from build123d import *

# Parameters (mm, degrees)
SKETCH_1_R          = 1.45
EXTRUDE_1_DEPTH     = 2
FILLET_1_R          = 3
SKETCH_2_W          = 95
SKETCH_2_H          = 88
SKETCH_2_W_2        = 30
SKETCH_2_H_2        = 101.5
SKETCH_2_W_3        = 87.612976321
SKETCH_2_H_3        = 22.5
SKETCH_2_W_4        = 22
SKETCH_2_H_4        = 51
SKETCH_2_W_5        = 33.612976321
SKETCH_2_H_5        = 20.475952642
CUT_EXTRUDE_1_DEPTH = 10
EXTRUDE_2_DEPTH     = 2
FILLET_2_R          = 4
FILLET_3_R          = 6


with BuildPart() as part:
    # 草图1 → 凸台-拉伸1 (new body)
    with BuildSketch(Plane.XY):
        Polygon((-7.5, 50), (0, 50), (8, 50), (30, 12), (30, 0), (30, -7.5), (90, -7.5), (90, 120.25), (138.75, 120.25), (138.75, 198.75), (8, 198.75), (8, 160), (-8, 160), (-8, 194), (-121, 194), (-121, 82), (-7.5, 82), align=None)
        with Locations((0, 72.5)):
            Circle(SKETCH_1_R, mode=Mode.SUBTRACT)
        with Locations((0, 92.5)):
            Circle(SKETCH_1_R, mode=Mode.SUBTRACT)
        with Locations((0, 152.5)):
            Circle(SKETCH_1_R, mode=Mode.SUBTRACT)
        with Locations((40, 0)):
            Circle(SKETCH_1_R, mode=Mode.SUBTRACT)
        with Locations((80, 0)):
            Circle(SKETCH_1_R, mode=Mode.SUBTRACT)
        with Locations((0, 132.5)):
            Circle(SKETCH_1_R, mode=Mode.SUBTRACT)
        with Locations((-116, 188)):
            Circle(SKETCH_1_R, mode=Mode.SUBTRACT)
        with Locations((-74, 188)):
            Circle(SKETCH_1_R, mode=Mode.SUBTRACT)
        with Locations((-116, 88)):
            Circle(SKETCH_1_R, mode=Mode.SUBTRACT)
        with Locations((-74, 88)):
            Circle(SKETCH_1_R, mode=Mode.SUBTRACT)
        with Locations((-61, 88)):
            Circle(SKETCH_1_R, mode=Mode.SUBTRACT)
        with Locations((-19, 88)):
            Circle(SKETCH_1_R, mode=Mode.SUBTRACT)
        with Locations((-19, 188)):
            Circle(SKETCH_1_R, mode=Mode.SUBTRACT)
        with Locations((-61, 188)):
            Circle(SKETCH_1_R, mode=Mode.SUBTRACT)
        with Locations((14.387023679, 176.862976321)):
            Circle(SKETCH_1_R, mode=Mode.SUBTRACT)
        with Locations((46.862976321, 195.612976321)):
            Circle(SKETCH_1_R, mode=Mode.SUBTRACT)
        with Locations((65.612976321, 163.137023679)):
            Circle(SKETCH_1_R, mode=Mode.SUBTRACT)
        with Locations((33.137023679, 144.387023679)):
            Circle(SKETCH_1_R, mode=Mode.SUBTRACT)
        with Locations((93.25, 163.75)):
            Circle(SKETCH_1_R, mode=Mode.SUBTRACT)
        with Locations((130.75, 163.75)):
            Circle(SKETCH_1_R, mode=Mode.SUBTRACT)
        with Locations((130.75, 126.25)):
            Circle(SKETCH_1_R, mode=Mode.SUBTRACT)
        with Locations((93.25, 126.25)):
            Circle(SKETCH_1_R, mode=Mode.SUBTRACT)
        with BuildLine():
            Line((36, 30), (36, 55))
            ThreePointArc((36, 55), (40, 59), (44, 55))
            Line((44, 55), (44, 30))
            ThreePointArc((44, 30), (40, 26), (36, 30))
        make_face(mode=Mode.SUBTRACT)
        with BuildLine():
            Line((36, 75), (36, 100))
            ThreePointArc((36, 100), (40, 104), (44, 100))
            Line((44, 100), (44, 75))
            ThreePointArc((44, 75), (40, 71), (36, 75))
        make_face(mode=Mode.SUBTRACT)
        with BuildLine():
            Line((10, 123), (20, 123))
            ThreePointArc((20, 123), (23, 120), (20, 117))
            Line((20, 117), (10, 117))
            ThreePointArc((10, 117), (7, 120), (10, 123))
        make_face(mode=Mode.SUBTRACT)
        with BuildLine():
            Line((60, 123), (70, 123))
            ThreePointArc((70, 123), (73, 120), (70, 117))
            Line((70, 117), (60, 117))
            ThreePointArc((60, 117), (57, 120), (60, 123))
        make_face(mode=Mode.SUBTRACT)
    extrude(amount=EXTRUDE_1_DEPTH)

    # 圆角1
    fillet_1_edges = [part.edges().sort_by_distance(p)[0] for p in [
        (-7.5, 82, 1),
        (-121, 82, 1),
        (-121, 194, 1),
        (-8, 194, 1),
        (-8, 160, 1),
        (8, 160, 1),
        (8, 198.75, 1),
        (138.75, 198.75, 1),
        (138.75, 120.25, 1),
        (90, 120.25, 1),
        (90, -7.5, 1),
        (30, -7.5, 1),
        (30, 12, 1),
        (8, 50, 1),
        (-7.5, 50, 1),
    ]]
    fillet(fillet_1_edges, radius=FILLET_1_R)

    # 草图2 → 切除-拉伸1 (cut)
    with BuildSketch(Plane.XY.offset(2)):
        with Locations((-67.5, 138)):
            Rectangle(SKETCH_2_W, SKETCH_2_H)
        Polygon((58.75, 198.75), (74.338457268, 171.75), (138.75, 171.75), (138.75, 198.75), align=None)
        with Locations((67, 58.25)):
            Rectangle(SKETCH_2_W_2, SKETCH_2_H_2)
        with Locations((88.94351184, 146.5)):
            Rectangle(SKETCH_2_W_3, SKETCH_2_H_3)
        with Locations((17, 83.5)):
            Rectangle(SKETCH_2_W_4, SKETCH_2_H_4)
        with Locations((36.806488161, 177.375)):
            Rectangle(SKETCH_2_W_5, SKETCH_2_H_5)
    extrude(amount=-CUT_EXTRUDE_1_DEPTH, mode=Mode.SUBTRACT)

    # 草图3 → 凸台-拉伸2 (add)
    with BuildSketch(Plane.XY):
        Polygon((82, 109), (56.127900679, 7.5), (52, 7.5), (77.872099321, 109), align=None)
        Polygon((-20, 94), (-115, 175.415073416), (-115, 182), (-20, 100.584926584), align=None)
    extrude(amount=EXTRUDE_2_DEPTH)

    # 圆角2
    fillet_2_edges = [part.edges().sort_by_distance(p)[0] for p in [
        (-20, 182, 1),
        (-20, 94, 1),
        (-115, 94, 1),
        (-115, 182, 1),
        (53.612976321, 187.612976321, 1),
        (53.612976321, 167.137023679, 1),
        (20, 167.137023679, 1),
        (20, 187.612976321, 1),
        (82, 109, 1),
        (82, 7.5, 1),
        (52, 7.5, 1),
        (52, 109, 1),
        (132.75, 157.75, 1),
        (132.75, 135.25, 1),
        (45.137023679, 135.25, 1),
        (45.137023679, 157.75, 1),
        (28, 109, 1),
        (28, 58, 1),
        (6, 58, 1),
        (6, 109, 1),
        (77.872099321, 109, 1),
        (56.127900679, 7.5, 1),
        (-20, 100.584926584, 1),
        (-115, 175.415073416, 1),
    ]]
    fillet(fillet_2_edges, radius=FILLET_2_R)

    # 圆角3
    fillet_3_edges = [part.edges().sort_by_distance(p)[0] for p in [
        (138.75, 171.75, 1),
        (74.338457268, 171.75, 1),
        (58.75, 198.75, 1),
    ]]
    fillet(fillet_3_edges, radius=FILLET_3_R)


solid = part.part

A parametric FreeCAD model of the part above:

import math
import FreeCAD as App
import Part
import Sketcher
from FreeCAD import Vector
Q = App.Units.Quantity


def edges_at(feature, points):
    """Names of the edges that pass closest to the given points."""
    edges = feature.Shape.Edges
    near = lambda p: min(range(len(edges)), key=lambda i: edges[i].distToShape(Part.Vertex(*p))[0])
    return sorted({f"Edge{near(p) + 1}" for p in points})


def add_polygon(sketch, points):
    """Adds a closed chain of lines whose ends are joined by coincident constraints."""
    first, n = sketch.GeometryCount, len(points)
    for a, b in zip(points, points[1:] + points[:1]):
        sketch.addGeometry(Part.LineSegment(App.Vector(*a, 0), App.Vector(*b, 0)), False)
    for i in range(n):
        sketch.addConstraint(Sketcher.Constraint("Coincident", first + i, 2, first + (i + 1) % n, 1))

doc = App.newDocument("Part")
body = doc.addObject("PartDesign::Body", "Body")

# Sketch on XY plane
sketch1 = doc.addObject("Sketcher::SketchObject", "Sketch")
body.addObject(sketch1)
sketch1.AttachmentSupport = (doc.XY_Plane, [""])
sketch1.MapMode = "FlatFace"
add_polygon(sketch1, [(-7.5, 50), (8, 50), (30, 12), (30, -7.5), (90, -7.5), (90, 120.25), (138.75, 120.25), (138.75, 198.75), (8, 198.75), (8, 160), (-8, 160), (-8, 194), (-121, 194), (-121, 82), (-7.5, 82)])  # lines 0-14
sketch1.addGeometry(Part.Circle(Vector(-116, 88, 0), Vector(0, 0, 1), 1.45), False)  # 15
sketch1.addGeometry(Part.Circle(Vector(-74, 88, 0), Vector(0, 0, 1), 1.45), False)  # 16
sketch1.addGeometry(Part.Circle(Vector(-61, 88, 0), Vector(0, 0, 1), 1.45), False)  # 17
sketch1.addGeometry(Part.Circle(Vector(0, 72.5, 0), Vector(0, 0, 1), 1.45), False)  # 18
sketch1.addGeometry(Part.Circle(Vector(-19, 88, 0), Vector(0, 0, 1), 1.45), False)  # 19
sketch1.addGeometry(Part.Circle(Vector(0, 92.5, 0), Vector(0, 0, 1), 1.45), False)  # 20
sketch1.addGeometry(Part.Circle(Vector(40, 0, 0), Vector(0, 0, 1), 1.45), False)  # 21
sketch1.addGeometry(Part.ArcOfCircle(Part.Circle(Vector(40, 30, 0), Vector(0, 0, 1), 4), math.radians(180), math.radians(360)), False)  # 22
sketch1.addGeometry(Part.LineSegment(Vector(36, 30, 0), Vector(36, 55, 0)), False)  # 23
sketch1.addGeometry(Part.ArcOfCircle(Part.Circle(Vector(40, 55, 0), Vector(0, 0, 1), 4), math.radians(0), math.radians(180)), False)  # 24
sketch1.addGeometry(Part.LineSegment(Vector(44, 55, 0), Vector(44, 30, 0)), False)  # 25
sketch1.addGeometry(Part.Circle(Vector(80, 0, 0), Vector(0, 0, 1), 1.45), False)  # 26
sketch1.addGeometry(Part.ArcOfCircle(Part.Circle(Vector(40, 75, 0), Vector(0, 0, 1), 4), math.radians(180), math.radians(360)), False)  # 27
sketch1.addGeometry(Part.LineSegment(Vector(36, 75, 0), Vector(36, 100, 0)), False)  # 28
sketch1.addGeometry(Part.ArcOfCircle(Part.Circle(Vector(40, 100, 0), Vector(0, 0, 1), 4), math.radians(0), math.radians(180)), False)  # 29
sketch1.addGeometry(Part.LineSegment(Vector(44, 100, 0), Vector(44, 75, 0)), False)  # 30
sketch1.addGeometry(Part.Circle(Vector(0, 132.5, 0), Vector(0, 0, 1), 1.45), False)  # 31
sketch1.addGeometry(Part.Circle(Vector(-116, 188, 0), Vector(0, 0, 1), 1.45), False)  # 32
sketch1.addGeometry(Part.Circle(Vector(-74, 188, 0), Vector(0, 0, 1), 1.45), False)  # 33
sketch1.addGeometry(Part.Circle(Vector(-61, 188, 0), Vector(0, 0, 1), 1.45), False)  # 34
sketch1.addGeometry(Part.Circle(Vector(0, 152.5, 0), Vector(0, 0, 1), 1.45), False)  # 35
sketch1.addGeometry(Part.Circle(Vector(-19, 188, 0), Vector(0, 0, 1), 1.45), False)  # 36
sketch1.addGeometry(Part.ArcOfCircle(Part.Circle(Vector(10, 120, 0), Vector(0, 0, 1), 3), math.radians(90), math.radians(270)), False)  # 37
sketch1.addGeometry(Part.LineSegment(Vector(10, 123, 0), Vector(20, 123, 0)), False)  # 38
sketch1.addGeometry(Part.ArcOfCircle(Part.Circle(Vector(20, 120, 0), Vector(0, 0, 1), 3), math.radians(-90), math.radians(90)), False)  # 39
sketch1.addGeometry(Part.LineSegment(Vector(20, 117, 0), Vector(10, 117, 0)), False)  # 40
sketch1.addGeometry(Part.ArcOfCircle(Part.Circle(Vector(60, 120, 0), Vector(0, 0, 1), 3), math.radians(90), math.radians(270)), False)  # 41
sketch1.addGeometry(Part.LineSegment(Vector(60, 123, 0), Vector(70, 123, 0)), False)  # 42
sketch1.addGeometry(Part.ArcOfCircle(Part.Circle(Vector(70, 120, 0), Vector(0, 0, 1), 3), math.radians(-90), math.radians(90)), False)  # 43
sketch1.addGeometry(Part.LineSegment(Vector(70, 117, 0), Vector(60, 117, 0)), False)  # 44
sketch1.addGeometry(Part.Circle(Vector(33.137024, 144.387024, 0), Vector(0, 0, 1), 1.45), False)  # 45
sketch1.addGeometry(Part.Circle(Vector(93.25, 126.25, 0), Vector(0, 0, 1), 1.45), False)  # 46
sketch1.addGeometry(Part.Circle(Vector(130.75, 126.25, 0), Vector(0, 0, 1), 1.45), False)  # 47
sketch1.addGeometry(Part.Circle(Vector(65.612976, 163.137024, 0), Vector(0, 0, 1), 1.45), False)  # 48
sketch1.addGeometry(Part.Circle(Vector(14.387024, 176.862976, 0), Vector(0, 0, 1), 1.45), False)  # 49
sketch1.addGeometry(Part.Circle(Vector(46.862976, 195.612976, 0), Vector(0, 0, 1), 1.45), False)  # 50
sketch1.addGeometry(Part.Circle(Vector(93.25, 163.75, 0), Vector(0, 0, 1), 1.45), False)  # 51
sketch1.addGeometry(Part.Circle(Vector(130.75, 163.75, 0), Vector(0, 0, 1), 1.45), False)  # 52
sketch1.addConstraint([
    Sketcher.Constraint("Tangent", 22, 1, 23, 1),
    Sketcher.Constraint("Tangent", 23, 2, 24, 2),
    Sketcher.Constraint("Tangent", 24, 1, 25, 1),
    Sketcher.Constraint("Tangent", 25, 2, 22, 2),
    Sketcher.Constraint("Tangent", 27, 1, 28, 1),
    Sketcher.Constraint("Tangent", 28, 2, 29, 2),
    Sketcher.Constraint("Tangent", 29, 1, 30, 1),
    Sketcher.Constraint("Tangent", 30, 2, 27, 2),
    Sketcher.Constraint("Tangent", 37, 1, 38, 1),
    Sketcher.Constraint("Tangent", 38, 2, 39, 2),
    Sketcher.Constraint("Tangent", 39, 1, 40, 1),
    Sketcher.Constraint("Tangent", 40, 2, 37, 2),
    Sketcher.Constraint("Tangent", 41, 1, 42, 1),
    Sketcher.Constraint("Tangent", 42, 2, 43, 2),
    Sketcher.Constraint("Tangent", 43, 1, 44, 1),
    Sketcher.Constraint("Tangent", 44, 2, 41, 2),
    Sketcher.Constraint("Horizontal", 0),
    Sketcher.Constraint("Vertical", 2),
    Sketcher.Constraint("Horizontal", 3),
    Sketcher.Constraint("Vertical", 4),
    Sketcher.Constraint("Horizontal", 5),
    Sketcher.Constraint("Vertical", 6),
    Sketcher.Constraint("Horizontal", 7),
    Sketcher.Constraint("Vertical", 8),
    Sketcher.Constraint("Horizontal", 9),
    Sketcher.Constraint("Vertical", 10),
    Sketcher.Constraint("Horizontal", 11),
    Sketcher.Constraint("Vertical", 12),
    Sketcher.Constraint("Horizontal", 13),
    Sketcher.Constraint("Vertical", 14),
    Sketcher.Constraint("Vertical", 23),
    Sketcher.Constraint("Vertical", 25),
    Sketcher.Constraint("Vertical", 28),
    Sketcher.Constraint("Vertical", 30),
    Sketcher.Constraint("Horizontal", 38),
    Sketcher.Constraint("Horizontal", 40),
    Sketcher.Constraint("Horizontal", 42),
    Sketcher.Constraint("Horizontal", 44),
    Sketcher.Constraint("Equal", 15, 16),
    Sketcher.Constraint("Equal", 16, 17),
    Sketcher.Constraint("Equal", 17, 18),
    Sketcher.Constraint("Equal", 18, 19),
    Sketcher.Constraint("Equal", 19, 20),
    Sketcher.Constraint("Equal", 20, 21),
    Sketcher.Constraint("Equal", 21, 26),
    Sketcher.Constraint("Equal", 24, 27),
    Sketcher.Constraint("Equal", 26, 31),
    Sketcher.Constraint("Equal", 31, 32),
    Sketcher.Constraint("Equal", 32, 33),
    Sketcher.Constraint("Equal", 33, 34),
    Sketcher.Constraint("Equal", 34, 35),
    Sketcher.Constraint("Equal", 35, 36),
    Sketcher.Constraint("Equal", 39, 41),
    Sketcher.Constraint("Equal", 36, 45),
    Sketcher.Constraint("Equal", 45, 46),
    Sketcher.Constraint("Equal", 46, 47),
    Sketcher.Constraint("Equal", 47, 48),
    Sketcher.Constraint("Equal", 48, 49),
    Sketcher.Constraint("Equal", 49, 50),
    Sketcher.Constraint("Equal", 50, 51),
    Sketcher.Constraint("Equal", 51, 52),
    Sketcher.Constraint("PointOnObject", 18, 3, -2),
    Sketcher.Constraint("PointOnObject", 20, 3, -2),
    Sketcher.Constraint("PointOnObject", 21, 3, -1),
    Sketcher.Constraint("PointOnObject", 26, 3, -1),
    Sketcher.Constraint("PointOnObject", 31, 3, -2),
    Sketcher.Constraint("PointOnObject", 35, 3, -2),
    Sketcher.Constraint("Horizontal", 15, 3, 16, 3),
    Sketcher.Constraint("Horizontal", 16, 3, 17, 3),
    Sketcher.Constraint("Horizontal", 17, 3, 19, 3),
    Sketcher.Constraint("Horizontal", 32, 3, 33, 3),
    Sketcher.Constraint("Horizontal", 33, 3, 34, 3),
    Sketcher.Constraint("Horizontal", 34, 3, 36, 3),
    Sketcher.Constraint("Horizontal", 39, 3, 41, 3),
    Sketcher.Constraint("Horizontal", 46, 3, 47, 3),
    Sketcher.Constraint("Horizontal", 51, 3, 52, 3),
    Sketcher.Constraint("Vertical", 21, 3, 22, 3),
    Sketcher.Constraint("Vertical", 24, 3, 27, 3),
    Sketcher.Constraint("Vertical", 15, 3, 32, 3),
    Sketcher.Constraint("Vertical", 16, 3, 33, 3),
    Sketcher.Constraint("Vertical", 17, 3, 34, 3),
    Sketcher.Constraint("Vertical", 19, 3, 36, 3),
    Sketcher.Constraint("Vertical", 46, 3, 51, 3),
    Sketcher.Constraint("Vertical", 47, 3, 52, 3),
    Sketcher.Constraint("Vertical", 0, 2, 7, 2),
    Sketcher.Constraint("Equal", 40, 42),
    Sketcher.Constraint("Equal", 25, 28),
    Sketcher.Constraint("Radius", 22, 4.0),
    Sketcher.Constraint("Radius", 37, 3.0),
    Sketcher.Constraint("Diameter", 15, 2.9),
    Sketcher.Constraint("DistanceX", 3, 1, 3, 2, 60.0),
    Sketcher.Constraint("DistanceX", 9, 2, 9, 1, 16.0),
    Sketcher.Constraint("DistanceX", 11, 2, 11, 1, 113.0),
    Sketcher.Constraint("DistanceX", 38, 1, 38, 2, 10.0),
    Sketcher.Constraint("DistanceY", 10, 1, 10, 2, 34.0),
    Sketcher.Constraint("DistanceY", 12, 2, 12, 1, 112.0),
    Sketcher.Constraint("DistanceY", 14, 2, 14, 1, 32.0),
    Sketcher.Constraint("DistanceY", 23, 1, 23, 2, 25.0),
    Sketcher.Constraint("DistanceX", 0, 1, 0, 2, 15.5),
    Sketcher.Constraint("DistanceY", 2, 2, 2, 1, 19.5),
    Sketcher.Constraint("DistanceY", 6, 1, 6, 2, 78.5),
    Sketcher.Constraint("DistanceX", 15, 3, -1, 1, 116.0),
    Sketcher.Constraint("DistanceY", -1, 1, 15, 3, 88.0),
    Sketcher.Constraint("DistanceX", 16, 3, -1, 1, 74.0),
    Sketcher.Constraint("DistanceX", 17, 3, -1, 1, 61.0),
    Sketcher.Constraint("DistanceX", 19, 3, -1, 1, 19.0),
    Sketcher.Constraint("DistanceX", -1, 1, 21, 3, 40.0),
    Sketcher.Constraint("DistanceY", -1, 1, 22, 3, 30.0),
    Sketcher.Constraint("DistanceX", -1, 1, 26, 3, 80.0),
    Sketcher.Constraint("DistanceY", -1, 1, 27, 3, 75.0),
    Sketcher.Constraint("DistanceY", -1, 1, 32, 3, 188.0),
    Sketcher.Constraint("DistanceX", -1, 1, 37, 3, 10.0),
    Sketcher.Constraint("DistanceY", -1, 1, 37, 3, 120.0),
    Sketcher.Constraint("DistanceX", -1, 1, 41, 3, 60.0),
    Sketcher.Constraint("DistanceX", -1, 1, 0, 2, 8.0),
    Sketcher.Constraint("DistanceY", -1, 1, 0, 2, 50.0),
    Sketcher.Constraint("DistanceX", -1, 1, 1, 2, 30.0),
    Sketcher.Constraint("DistanceY", -1, 1, 1, 2, 12.0),
    Sketcher.Constraint("DistanceX", 5, 1, 5, 2, 48.75),
    Sketcher.Constraint("DistanceY", 4, 1, 4, 2, 127.75),
    Sketcher.Constraint("DistanceY", -1, 1, 18, 3, 72.5),
    Sketcher.Constraint("DistanceY", -1, 1, 20, 3, 92.5),
    Sketcher.Constraint("DistanceY", -1, 1, 31, 3, 132.5),
    Sketcher.Constraint("DistanceY", -1, 1, 35, 3, 152.5),
    Sketcher.Constraint("DistanceX", -1, 1, 46, 3, 93.25),
    Sketcher.Constraint("DistanceY", -1, 1, 46, 3, 126.25),
    Sketcher.Constraint("DistanceX", -1, 1, 47, 3, 130.75),
    Sketcher.Constraint("DistanceY", -1, 1, 51, 3, 163.75),
    Sketcher.Constraint("DistanceX", -1, 1, 45, 3, 33.137024),
    Sketcher.Constraint("DistanceY", -1, 1, 45, 3, 144.387024),
    Sketcher.Constraint("DistanceX", -1, 1, 48, 3, 65.612976),
    Sketcher.Constraint("DistanceY", -1, 1, 48, 3, 163.137024),
    Sketcher.Constraint("DistanceX", -1, 1, 49, 3, 14.387024),
    Sketcher.Constraint("DistanceY", -1, 1, 49, 3, 176.862976),
    Sketcher.Constraint("DistanceX", -1, 1, 50, 3, 46.862976),
    Sketcher.Constraint("DistanceY", -1, 1, 50, 3, 195.612976),
])
pad1 = doc.addObject("PartDesign::Pad", "Pad")
body.addObject(pad1)
pad1.Profile = sketch1
pad1.Length = 2
doc.recompute()

fillet = doc.addObject("PartDesign::Fillet", "Fillet")
body.addObject(fillet)
fillet.Base = (pad1, edges_at(pad1, [
    (-7.5, 82, 1),
    (-121, 82, 1),
    (-121, 194, 1),
    (-8, 194, 1),
    (-8, 160, 1),
    (8, 160, 1),
    (8, 198.75, 1),
    (138.75, 198.75, 1),
    (138.75, 120.25, 1),
    (90, 120.25, 1),
    (90, -7.5, 1),
    (30, -7.5, 1),
    (30, 12, 1),
    (8, 50, 1),
    (-7.5, 50, 1),
]))
fillet.Radius = 3

# Sketch on XY plane
sketch2 = doc.addObject("Sketcher::SketchObject", "Sketch001")
body.addObject(sketch2)
sketch2.AttachmentSupport = (doc.XY_Plane, [""])
sketch2.MapMode = "FlatFace"
sketch2.AttachmentOffset = App.Placement(Vector(0, 0, 2), App.Rotation())
add_polygon(sketch2, [(-115, 182), (-115, 94), (-20, 94), (-20, 182)])  # lines 0-3
add_polygon(sketch2, [(58.75, 198.75), (74.338457, 171.75), (138.75, 171.75), (138.75, 198.75)])  # lines 4-7
add_polygon(sketch2, [(52, 109), (52, 7.5), (82, 7.5), (82, 109)])  # lines 8-11
add_polygon(sketch2, [(45.137024, 157.75), (45.137024, 135.25), (132.75, 135.25), (132.75, 157.75)])  # lines 12-15
add_polygon(sketch2, [(6, 109), (6, 58), (28, 58), (28, 109)])  # lines 16-19
add_polygon(sketch2, [(20, 187.612976), (20, 167.137024), (53.612976, 167.137024), (53.612976, 187.612976)])  # lines 20-23
sketch2.addConstraint([
    Sketcher.Constraint("Vertical", 0),
    Sketcher.Constraint("Horizontal", 1),
    Sketcher.Constraint("Vertical", 2),
    Sketcher.Constraint("Horizontal", 3),
    Sketcher.Constraint("Horizontal", 5),
    Sketcher.Constraint("Vertical", 6),
    Sketcher.Constraint("Horizontal", 7),
    Sketcher.Constraint("Vertical", 8),
    Sketcher.Constraint("Horizontal", 9),
    Sketcher.Constraint("Vertical", 10),
    Sketcher.Constraint("Horizontal", 11),
    Sketcher.Constraint("Vertical", 12),
    Sketcher.Constraint("Horizontal", 13),
    Sketcher.Constraint("Vertical", 14),
    Sketcher.Constraint("Horizontal", 15),
    Sketcher.Constraint("Vertical", 16),
    Sketcher.Constraint("Horizontal", 17),
    Sketcher.Constraint("Vertical", 18),
    Sketcher.Constraint("Horizontal", 19),
    Sketcher.Constraint("Vertical", 20),
    Sketcher.Constraint("Horizontal", 21),
    Sketcher.Constraint("Vertical", 22),
    Sketcher.Constraint("Horizontal", 23),
    Sketcher.Constraint("Horizontal", 11, 2, 18, 2),
    Sketcher.Constraint("DistanceX", 1, 1, 1, 2, 95.0),
    Sketcher.Constraint("DistanceX", 7, 2, 7, 1, 80.0),
    Sketcher.Constraint("DistanceX", 9, 1, 9, 2, 30.0),
    Sketcher.Constraint("DistanceX", 17, 1, 17, 2, 22.0),
    Sketcher.Constraint("DistanceY", 0, 2, 0, 1, 88.0),
    Sketcher.Constraint("DistanceY", 6, 1, 6, 2, 27.0),
    Sketcher.Constraint("DistanceY", 16, 2, 16, 1, 51.0),
    Sketcher.Constraint("Angle", 4, Q("-60 deg")),
    Sketcher.Constraint("DistanceY", 8, 2, 8, 1, 101.5),
    Sketcher.Constraint("DistanceY", 12, 2, 12, 1, 22.5),
    Sketcher.Constraint("DistanceX", 0, 2, -1, 1, 115.0),
    Sketcher.Constraint("DistanceY", -1, 1, 0, 2, 94.0),
    Sketcher.Constraint("DistanceX", -1, 1, 8, 2, 52.0),
    Sketcher.Constraint("DistanceY", -1, 1, 10, 2, 109.0),
    Sketcher.Constraint("DistanceX", -1, 1, 16, 2, 6.0),
    Sketcher.Constraint("DistanceX", -1, 1, 20, 2, 20.0),
    Sketcher.Constraint("DistanceX", 13, 2, 5, 2, 6.0),
    Sketcher.Constraint("DistanceY", 14, 2, 5, 2, 14.0),
    Sketcher.Constraint("DistanceY", -1, 1, 4, 2, 171.75),
    Sketcher.Constraint("DistanceX", -1, 1, 5, 2, 138.75),
    Sketcher.Constraint("DistanceX", 13, 1, 13, 2, 87.612976),
    Sketcher.Constraint("DistanceX", 21, 1, 21, 2, 33.612976),
    Sketcher.Constraint("DistanceY", 20, 2, 20, 1, 20.475953),
    Sketcher.Constraint("DistanceY", -1, 1, 20, 2, 167.137024),
])
pocket1 = doc.addObject("PartDesign::Pocket", "Pocket")
body.addObject(pocket1)
pocket1.Profile = sketch2
pocket1.Length = 10

# Sketch on XY plane
sketch3 = doc.addObject("Sketcher::SketchObject", "Sketch002")
body.addObject(sketch3)
sketch3.AttachmentSupport = (doc.XY_Plane, [""])
sketch3.MapMode = "FlatFace"
add_polygon(sketch3, [(56.127901, 7.5), (82, 109), (77.872099, 109), (52, 7.5)])  # lines 0-3
add_polygon(sketch3, [(-115, 175.415073), (-20, 94), (-20, 100.584927), (-115, 182)])  # lines 4-7
sketch3.addConstraint([
    Sketcher.Constraint("Horizontal", 1),
    Sketcher.Constraint("Horizontal", 3),
    Sketcher.Constraint("Vertical", 5),
    Sketcher.Constraint("Vertical", 7),
    Sketcher.Constraint("Parallel", 0, 2),
    Sketcher.Constraint("Parallel", 4, 6),
    Sketcher.Constraint("DistanceX", -1, 1, 0, 2, 82.0),
    Sketcher.Constraint("DistanceY", -1, 1, 0, 2, 109.0),
    Sketcher.Constraint("DistanceX", -1, 1, 2, 2, 52.0),
    Sketcher.Constraint("DistanceX", 4, 2, -1, 1, 20.0),
    Sketcher.Constraint("DistanceY", -1, 1, 4, 2, 94.0),
    Sketcher.Constraint("DistanceX", 6, 2, -1, 1, 115.0),
    Sketcher.Constraint("DistanceY", -1, 1, 6, 2, 182.0),
    Sketcher.Constraint("DistanceY", -1, 1, 2, 2, 7.5),
    Sketcher.Constraint("DistanceX", 1, 2, 1, 1, 4.127901),
    Sketcher.Constraint("DistanceY", 5, 1, 5, 2, 6.584927),
])
pad2 = doc.addObject("PartDesign::Pad", "Pad001")
body.addObject(pad2)
pad2.Profile = sketch3
pad2.Length = 2
doc.recompute()

fillet2 = doc.addObject("PartDesign::Fillet", "Fillet001")
body.addObject(fillet2)
fillet2.Base = (pad2, edges_at(pad2, [
    (-20, 182, 1),
    (-20, 94, 1),
    (-115, 94, 1),
    (-115, 182, 1),
    (53.613, 187.613, 1),
    (53.613, 167.137, 1),
    (20, 167.137, 1),
    (20, 187.613, 1),
    (82, 109, 1),
    (82, 7.5, 1),
    (52, 7.5, 1),
    (52, 109, 1),
    (132.75, 157.75, 1),
    (132.75, 135.25, 1),
    (45.137, 135.25, 1),
    (45.137, 157.75, 1),
    (28, 109, 1),
    (28, 58, 1),
    (6, 58, 1),
    (6, 109, 1),
    (77.872, 109, 1),
    (56.128, 7.5, 1),
    (-20, 100.585, 1),
    (-115, 175.415, 1),
]))
fillet2.Radius = 4
doc.recompute()

fillet3 = doc.addObject("PartDesign::Fillet", "Fillet002")
body.addObject(fillet3)
fillet3.Base = (fillet2, edges_at(fillet2, [(138.75, 171.75, 1), (74.338, 171.75, 1), (58.75, 198.75, 1)]))
fillet3.Radius = 6

doc.recompute()
